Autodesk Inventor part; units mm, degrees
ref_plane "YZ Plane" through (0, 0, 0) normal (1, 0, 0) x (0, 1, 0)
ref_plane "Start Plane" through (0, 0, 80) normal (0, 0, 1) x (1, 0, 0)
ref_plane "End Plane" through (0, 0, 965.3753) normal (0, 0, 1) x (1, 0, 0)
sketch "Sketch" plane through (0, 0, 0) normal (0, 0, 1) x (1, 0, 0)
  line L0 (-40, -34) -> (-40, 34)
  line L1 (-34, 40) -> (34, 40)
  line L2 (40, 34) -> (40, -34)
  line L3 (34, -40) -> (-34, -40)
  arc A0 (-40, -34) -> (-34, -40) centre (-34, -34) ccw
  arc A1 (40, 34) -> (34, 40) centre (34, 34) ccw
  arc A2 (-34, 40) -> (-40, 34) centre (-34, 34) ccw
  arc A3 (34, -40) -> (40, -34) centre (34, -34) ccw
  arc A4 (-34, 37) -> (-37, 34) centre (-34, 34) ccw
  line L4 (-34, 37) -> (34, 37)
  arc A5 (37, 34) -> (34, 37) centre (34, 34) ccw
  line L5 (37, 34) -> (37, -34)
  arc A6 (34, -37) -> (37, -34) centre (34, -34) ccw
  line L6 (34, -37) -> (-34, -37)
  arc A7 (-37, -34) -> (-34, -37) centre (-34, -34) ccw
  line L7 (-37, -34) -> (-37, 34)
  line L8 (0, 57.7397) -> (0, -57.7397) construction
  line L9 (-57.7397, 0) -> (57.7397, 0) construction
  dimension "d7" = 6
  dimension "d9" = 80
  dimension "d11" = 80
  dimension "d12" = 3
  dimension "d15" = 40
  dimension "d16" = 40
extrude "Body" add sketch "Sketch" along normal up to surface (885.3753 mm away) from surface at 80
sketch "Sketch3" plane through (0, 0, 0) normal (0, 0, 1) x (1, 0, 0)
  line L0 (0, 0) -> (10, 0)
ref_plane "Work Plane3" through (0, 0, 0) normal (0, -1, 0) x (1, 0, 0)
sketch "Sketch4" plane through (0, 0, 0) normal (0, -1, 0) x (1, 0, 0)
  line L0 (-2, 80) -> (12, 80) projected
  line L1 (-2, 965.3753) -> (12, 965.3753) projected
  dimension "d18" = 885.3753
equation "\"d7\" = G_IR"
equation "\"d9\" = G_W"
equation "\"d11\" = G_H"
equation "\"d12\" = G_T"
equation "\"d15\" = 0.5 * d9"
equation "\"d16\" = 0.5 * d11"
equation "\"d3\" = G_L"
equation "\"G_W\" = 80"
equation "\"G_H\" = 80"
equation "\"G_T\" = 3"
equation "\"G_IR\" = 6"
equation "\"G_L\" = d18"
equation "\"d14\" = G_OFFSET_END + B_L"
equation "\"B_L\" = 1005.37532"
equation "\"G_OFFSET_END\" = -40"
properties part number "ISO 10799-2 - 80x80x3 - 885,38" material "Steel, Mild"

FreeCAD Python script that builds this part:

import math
import FreeCAD as App
import Part
import Sketcher
from FreeCAD import Vector

doc = App.newDocument("Part")
params = doc.addObject("Spreadsheet::Sheet", "Params")
for row, (alias, value) in enumerate([
    ("sketch1_radius", "6 mm"),
    ("sketch1_radius2", "3 mm"),
    ("pad1_length", "885.3753 mm"),
], start=1):
    params.set(f"A{row}", alias)
    params.set(f"B{row}", "=" + value)
    params.setAlias(f"B{row}", alias)

body = doc.addObject("PartDesign::Body", "Body")

sketch1 = doc.addObject("Sketcher::SketchObject", "Sketch")
body.addObject(sketch1)
sketch1.AttachmentSupport = (doc.XY_Plane, [""])
sketch1.MapMode = "FlatFace"
sketch1.AttachmentOffset = App.Placement(Vector(0, 0, 80), App.Rotation())
sketch1.addGeometry([
    Part.LineSegment(Vector(-40, 34, 0), Vector(-40, -34, 0)),
    Part.ArcOfCircle(Part.Circle(Vector(-34, -34, 0), Vector(0, 0, 1), 6), math.radians(180), math.radians(270)),
    Part.LineSegment(Vector(-34, -40, 0), Vector(34, -40, 0)),
    Part.ArcOfCircle(Part.Circle(Vector(34, -34, 0), Vector(0, 0, 1), 6), math.radians(-90), math.radians(0)),
    Part.LineSegment(Vector(40, -34, 0), Vector(40, 34, 0)),
    Part.ArcOfCircle(Part.Circle(Vector(34, 34, 0), Vector(0, 0, 1), 6), math.radians(0), math.radians(90)),
    Part.LineSegment(Vector(34, 40, 0), Vector(-34, 40, 0)),
    Part.ArcOfCircle(Part.Circle(Vector(-34, 34, 0), Vector(0, 0, 1), 6), math.radians(90), math.radians(180)),
    Part.ArcOfCircle(Part.Circle(Vector(-34, 34, 0), Vector(0, 0, 1), 3), math.radians(90), math.radians(180)),
    Part.LineSegment(Vector(-34, 37, 0), Vector(34, 37, 0)),
    Part.ArcOfCircle(Part.Circle(Vector(34, 34, 0), Vector(0, 0, 1), 3), math.radians(0), math.radians(90)),
    Part.LineSegment(Vector(37, 34, 0), Vector(37, -34, 0)),
    Part.ArcOfCircle(Part.Circle(Vector(34, -34, 0), Vector(0, 0, 1), 3), math.radians(-90), math.radians(0)),
    Part.LineSegment(Vector(34, -37, 0), Vector(-34, -37, 0)),
    Part.ArcOfCircle(Part.Circle(Vector(-34, -34, 0), Vector(0, 0, 1), 3), math.radians(180), math.radians(270)),
    Part.LineSegment(Vector(-37, -34, 0), Vector(-37, 34, 0)),
], False)
sketch1.addConstraint([
    Sketcher.Constraint("Tangent", 0, 2, 1, 1),
    Sketcher.Constraint("Tangent", 1, 2, 2, 1),
    Sketcher.Constraint("Tangent", 2, 2, 3, 1),
    Sketcher.Constraint("Tangent", 3, 2, 4, 1),
    Sketcher.Constraint("Tangent", 4, 2, 5, 1),
    Sketcher.Constraint("Tangent", 5, 2, 6, 1),
    Sketcher.Constraint("Tangent", 6, 2, 7, 1),
    Sketcher.Constraint("Tangent", 7, 2, 0, 1),
    Sketcher.Constraint("Tangent", 8, 1, 9, 1),
    Sketcher.Constraint("Tangent", 9, 2, 10, 2),
    Sketcher.Constraint("Tangent", 10, 1, 11, 1),
    Sketcher.Constraint("Tangent", 11, 2, 12, 2),
    Sketcher.Constraint("Tangent", 12, 1, 13, 1),
    Sketcher.Constraint("Tangent", 13, 2, 14, 2),
    Sketcher.Constraint("Tangent", 14, 1, 15, 1),
    Sketcher.Constraint("Tangent", 15, 2, 8, 2),
    Sketcher.Constraint("Vertical", 0),
    Sketcher.Constraint("Horizontal", 2),
    Sketcher.Constraint("Vertical", 4),
    Sketcher.Constraint("Horizontal", 6),
    Sketcher.Constraint("Horizontal", 9),
    Sketcher.Constraint("Vertical", 11),
    Sketcher.Constraint("Horizontal", 13),
    Sketcher.Constraint("Vertical", 15),
    Sketcher.Constraint("Coincident", 8, 3, 7, 3),
    Sketcher.Constraint("Coincident", 10, 3, 5, 3),
    Sketcher.Constraint("Coincident", 12, 3, 3, 3),
    Sketcher.Constraint("Equal", 1, 3),
    Sketcher.Constraint("Equal", 3, 5),
    Sketcher.Constraint("Equal", 5, 7),
    Sketcher.Constraint("Equal", 12, 14),
    Sketcher.Constraint("Symmetric", 1, 3, 5, 3, -1, 1),
    Sketcher.Constraint("Equal", 13, 0),
    Sketcher.Constraint("Radius", 1, 6.0),
    Sketcher.Constraint("Radius", 8, 3.0),
    Sketcher.Constraint("DistanceX", 0, 2, -1, 1, 40.0),
])
sketch1.setExpression("Constraints[33]", "Params.sketch1_radius")
sketch1.setExpression("Constraints[34]", "Params.sketch1_radius2")
pad1 = doc.addObject("PartDesign::Pad", "Pad")
body.addObject(pad1)
pad1.Profile = sketch1
pad1.setExpression("Length", "Params.pad1_length")

doc.recompute()
